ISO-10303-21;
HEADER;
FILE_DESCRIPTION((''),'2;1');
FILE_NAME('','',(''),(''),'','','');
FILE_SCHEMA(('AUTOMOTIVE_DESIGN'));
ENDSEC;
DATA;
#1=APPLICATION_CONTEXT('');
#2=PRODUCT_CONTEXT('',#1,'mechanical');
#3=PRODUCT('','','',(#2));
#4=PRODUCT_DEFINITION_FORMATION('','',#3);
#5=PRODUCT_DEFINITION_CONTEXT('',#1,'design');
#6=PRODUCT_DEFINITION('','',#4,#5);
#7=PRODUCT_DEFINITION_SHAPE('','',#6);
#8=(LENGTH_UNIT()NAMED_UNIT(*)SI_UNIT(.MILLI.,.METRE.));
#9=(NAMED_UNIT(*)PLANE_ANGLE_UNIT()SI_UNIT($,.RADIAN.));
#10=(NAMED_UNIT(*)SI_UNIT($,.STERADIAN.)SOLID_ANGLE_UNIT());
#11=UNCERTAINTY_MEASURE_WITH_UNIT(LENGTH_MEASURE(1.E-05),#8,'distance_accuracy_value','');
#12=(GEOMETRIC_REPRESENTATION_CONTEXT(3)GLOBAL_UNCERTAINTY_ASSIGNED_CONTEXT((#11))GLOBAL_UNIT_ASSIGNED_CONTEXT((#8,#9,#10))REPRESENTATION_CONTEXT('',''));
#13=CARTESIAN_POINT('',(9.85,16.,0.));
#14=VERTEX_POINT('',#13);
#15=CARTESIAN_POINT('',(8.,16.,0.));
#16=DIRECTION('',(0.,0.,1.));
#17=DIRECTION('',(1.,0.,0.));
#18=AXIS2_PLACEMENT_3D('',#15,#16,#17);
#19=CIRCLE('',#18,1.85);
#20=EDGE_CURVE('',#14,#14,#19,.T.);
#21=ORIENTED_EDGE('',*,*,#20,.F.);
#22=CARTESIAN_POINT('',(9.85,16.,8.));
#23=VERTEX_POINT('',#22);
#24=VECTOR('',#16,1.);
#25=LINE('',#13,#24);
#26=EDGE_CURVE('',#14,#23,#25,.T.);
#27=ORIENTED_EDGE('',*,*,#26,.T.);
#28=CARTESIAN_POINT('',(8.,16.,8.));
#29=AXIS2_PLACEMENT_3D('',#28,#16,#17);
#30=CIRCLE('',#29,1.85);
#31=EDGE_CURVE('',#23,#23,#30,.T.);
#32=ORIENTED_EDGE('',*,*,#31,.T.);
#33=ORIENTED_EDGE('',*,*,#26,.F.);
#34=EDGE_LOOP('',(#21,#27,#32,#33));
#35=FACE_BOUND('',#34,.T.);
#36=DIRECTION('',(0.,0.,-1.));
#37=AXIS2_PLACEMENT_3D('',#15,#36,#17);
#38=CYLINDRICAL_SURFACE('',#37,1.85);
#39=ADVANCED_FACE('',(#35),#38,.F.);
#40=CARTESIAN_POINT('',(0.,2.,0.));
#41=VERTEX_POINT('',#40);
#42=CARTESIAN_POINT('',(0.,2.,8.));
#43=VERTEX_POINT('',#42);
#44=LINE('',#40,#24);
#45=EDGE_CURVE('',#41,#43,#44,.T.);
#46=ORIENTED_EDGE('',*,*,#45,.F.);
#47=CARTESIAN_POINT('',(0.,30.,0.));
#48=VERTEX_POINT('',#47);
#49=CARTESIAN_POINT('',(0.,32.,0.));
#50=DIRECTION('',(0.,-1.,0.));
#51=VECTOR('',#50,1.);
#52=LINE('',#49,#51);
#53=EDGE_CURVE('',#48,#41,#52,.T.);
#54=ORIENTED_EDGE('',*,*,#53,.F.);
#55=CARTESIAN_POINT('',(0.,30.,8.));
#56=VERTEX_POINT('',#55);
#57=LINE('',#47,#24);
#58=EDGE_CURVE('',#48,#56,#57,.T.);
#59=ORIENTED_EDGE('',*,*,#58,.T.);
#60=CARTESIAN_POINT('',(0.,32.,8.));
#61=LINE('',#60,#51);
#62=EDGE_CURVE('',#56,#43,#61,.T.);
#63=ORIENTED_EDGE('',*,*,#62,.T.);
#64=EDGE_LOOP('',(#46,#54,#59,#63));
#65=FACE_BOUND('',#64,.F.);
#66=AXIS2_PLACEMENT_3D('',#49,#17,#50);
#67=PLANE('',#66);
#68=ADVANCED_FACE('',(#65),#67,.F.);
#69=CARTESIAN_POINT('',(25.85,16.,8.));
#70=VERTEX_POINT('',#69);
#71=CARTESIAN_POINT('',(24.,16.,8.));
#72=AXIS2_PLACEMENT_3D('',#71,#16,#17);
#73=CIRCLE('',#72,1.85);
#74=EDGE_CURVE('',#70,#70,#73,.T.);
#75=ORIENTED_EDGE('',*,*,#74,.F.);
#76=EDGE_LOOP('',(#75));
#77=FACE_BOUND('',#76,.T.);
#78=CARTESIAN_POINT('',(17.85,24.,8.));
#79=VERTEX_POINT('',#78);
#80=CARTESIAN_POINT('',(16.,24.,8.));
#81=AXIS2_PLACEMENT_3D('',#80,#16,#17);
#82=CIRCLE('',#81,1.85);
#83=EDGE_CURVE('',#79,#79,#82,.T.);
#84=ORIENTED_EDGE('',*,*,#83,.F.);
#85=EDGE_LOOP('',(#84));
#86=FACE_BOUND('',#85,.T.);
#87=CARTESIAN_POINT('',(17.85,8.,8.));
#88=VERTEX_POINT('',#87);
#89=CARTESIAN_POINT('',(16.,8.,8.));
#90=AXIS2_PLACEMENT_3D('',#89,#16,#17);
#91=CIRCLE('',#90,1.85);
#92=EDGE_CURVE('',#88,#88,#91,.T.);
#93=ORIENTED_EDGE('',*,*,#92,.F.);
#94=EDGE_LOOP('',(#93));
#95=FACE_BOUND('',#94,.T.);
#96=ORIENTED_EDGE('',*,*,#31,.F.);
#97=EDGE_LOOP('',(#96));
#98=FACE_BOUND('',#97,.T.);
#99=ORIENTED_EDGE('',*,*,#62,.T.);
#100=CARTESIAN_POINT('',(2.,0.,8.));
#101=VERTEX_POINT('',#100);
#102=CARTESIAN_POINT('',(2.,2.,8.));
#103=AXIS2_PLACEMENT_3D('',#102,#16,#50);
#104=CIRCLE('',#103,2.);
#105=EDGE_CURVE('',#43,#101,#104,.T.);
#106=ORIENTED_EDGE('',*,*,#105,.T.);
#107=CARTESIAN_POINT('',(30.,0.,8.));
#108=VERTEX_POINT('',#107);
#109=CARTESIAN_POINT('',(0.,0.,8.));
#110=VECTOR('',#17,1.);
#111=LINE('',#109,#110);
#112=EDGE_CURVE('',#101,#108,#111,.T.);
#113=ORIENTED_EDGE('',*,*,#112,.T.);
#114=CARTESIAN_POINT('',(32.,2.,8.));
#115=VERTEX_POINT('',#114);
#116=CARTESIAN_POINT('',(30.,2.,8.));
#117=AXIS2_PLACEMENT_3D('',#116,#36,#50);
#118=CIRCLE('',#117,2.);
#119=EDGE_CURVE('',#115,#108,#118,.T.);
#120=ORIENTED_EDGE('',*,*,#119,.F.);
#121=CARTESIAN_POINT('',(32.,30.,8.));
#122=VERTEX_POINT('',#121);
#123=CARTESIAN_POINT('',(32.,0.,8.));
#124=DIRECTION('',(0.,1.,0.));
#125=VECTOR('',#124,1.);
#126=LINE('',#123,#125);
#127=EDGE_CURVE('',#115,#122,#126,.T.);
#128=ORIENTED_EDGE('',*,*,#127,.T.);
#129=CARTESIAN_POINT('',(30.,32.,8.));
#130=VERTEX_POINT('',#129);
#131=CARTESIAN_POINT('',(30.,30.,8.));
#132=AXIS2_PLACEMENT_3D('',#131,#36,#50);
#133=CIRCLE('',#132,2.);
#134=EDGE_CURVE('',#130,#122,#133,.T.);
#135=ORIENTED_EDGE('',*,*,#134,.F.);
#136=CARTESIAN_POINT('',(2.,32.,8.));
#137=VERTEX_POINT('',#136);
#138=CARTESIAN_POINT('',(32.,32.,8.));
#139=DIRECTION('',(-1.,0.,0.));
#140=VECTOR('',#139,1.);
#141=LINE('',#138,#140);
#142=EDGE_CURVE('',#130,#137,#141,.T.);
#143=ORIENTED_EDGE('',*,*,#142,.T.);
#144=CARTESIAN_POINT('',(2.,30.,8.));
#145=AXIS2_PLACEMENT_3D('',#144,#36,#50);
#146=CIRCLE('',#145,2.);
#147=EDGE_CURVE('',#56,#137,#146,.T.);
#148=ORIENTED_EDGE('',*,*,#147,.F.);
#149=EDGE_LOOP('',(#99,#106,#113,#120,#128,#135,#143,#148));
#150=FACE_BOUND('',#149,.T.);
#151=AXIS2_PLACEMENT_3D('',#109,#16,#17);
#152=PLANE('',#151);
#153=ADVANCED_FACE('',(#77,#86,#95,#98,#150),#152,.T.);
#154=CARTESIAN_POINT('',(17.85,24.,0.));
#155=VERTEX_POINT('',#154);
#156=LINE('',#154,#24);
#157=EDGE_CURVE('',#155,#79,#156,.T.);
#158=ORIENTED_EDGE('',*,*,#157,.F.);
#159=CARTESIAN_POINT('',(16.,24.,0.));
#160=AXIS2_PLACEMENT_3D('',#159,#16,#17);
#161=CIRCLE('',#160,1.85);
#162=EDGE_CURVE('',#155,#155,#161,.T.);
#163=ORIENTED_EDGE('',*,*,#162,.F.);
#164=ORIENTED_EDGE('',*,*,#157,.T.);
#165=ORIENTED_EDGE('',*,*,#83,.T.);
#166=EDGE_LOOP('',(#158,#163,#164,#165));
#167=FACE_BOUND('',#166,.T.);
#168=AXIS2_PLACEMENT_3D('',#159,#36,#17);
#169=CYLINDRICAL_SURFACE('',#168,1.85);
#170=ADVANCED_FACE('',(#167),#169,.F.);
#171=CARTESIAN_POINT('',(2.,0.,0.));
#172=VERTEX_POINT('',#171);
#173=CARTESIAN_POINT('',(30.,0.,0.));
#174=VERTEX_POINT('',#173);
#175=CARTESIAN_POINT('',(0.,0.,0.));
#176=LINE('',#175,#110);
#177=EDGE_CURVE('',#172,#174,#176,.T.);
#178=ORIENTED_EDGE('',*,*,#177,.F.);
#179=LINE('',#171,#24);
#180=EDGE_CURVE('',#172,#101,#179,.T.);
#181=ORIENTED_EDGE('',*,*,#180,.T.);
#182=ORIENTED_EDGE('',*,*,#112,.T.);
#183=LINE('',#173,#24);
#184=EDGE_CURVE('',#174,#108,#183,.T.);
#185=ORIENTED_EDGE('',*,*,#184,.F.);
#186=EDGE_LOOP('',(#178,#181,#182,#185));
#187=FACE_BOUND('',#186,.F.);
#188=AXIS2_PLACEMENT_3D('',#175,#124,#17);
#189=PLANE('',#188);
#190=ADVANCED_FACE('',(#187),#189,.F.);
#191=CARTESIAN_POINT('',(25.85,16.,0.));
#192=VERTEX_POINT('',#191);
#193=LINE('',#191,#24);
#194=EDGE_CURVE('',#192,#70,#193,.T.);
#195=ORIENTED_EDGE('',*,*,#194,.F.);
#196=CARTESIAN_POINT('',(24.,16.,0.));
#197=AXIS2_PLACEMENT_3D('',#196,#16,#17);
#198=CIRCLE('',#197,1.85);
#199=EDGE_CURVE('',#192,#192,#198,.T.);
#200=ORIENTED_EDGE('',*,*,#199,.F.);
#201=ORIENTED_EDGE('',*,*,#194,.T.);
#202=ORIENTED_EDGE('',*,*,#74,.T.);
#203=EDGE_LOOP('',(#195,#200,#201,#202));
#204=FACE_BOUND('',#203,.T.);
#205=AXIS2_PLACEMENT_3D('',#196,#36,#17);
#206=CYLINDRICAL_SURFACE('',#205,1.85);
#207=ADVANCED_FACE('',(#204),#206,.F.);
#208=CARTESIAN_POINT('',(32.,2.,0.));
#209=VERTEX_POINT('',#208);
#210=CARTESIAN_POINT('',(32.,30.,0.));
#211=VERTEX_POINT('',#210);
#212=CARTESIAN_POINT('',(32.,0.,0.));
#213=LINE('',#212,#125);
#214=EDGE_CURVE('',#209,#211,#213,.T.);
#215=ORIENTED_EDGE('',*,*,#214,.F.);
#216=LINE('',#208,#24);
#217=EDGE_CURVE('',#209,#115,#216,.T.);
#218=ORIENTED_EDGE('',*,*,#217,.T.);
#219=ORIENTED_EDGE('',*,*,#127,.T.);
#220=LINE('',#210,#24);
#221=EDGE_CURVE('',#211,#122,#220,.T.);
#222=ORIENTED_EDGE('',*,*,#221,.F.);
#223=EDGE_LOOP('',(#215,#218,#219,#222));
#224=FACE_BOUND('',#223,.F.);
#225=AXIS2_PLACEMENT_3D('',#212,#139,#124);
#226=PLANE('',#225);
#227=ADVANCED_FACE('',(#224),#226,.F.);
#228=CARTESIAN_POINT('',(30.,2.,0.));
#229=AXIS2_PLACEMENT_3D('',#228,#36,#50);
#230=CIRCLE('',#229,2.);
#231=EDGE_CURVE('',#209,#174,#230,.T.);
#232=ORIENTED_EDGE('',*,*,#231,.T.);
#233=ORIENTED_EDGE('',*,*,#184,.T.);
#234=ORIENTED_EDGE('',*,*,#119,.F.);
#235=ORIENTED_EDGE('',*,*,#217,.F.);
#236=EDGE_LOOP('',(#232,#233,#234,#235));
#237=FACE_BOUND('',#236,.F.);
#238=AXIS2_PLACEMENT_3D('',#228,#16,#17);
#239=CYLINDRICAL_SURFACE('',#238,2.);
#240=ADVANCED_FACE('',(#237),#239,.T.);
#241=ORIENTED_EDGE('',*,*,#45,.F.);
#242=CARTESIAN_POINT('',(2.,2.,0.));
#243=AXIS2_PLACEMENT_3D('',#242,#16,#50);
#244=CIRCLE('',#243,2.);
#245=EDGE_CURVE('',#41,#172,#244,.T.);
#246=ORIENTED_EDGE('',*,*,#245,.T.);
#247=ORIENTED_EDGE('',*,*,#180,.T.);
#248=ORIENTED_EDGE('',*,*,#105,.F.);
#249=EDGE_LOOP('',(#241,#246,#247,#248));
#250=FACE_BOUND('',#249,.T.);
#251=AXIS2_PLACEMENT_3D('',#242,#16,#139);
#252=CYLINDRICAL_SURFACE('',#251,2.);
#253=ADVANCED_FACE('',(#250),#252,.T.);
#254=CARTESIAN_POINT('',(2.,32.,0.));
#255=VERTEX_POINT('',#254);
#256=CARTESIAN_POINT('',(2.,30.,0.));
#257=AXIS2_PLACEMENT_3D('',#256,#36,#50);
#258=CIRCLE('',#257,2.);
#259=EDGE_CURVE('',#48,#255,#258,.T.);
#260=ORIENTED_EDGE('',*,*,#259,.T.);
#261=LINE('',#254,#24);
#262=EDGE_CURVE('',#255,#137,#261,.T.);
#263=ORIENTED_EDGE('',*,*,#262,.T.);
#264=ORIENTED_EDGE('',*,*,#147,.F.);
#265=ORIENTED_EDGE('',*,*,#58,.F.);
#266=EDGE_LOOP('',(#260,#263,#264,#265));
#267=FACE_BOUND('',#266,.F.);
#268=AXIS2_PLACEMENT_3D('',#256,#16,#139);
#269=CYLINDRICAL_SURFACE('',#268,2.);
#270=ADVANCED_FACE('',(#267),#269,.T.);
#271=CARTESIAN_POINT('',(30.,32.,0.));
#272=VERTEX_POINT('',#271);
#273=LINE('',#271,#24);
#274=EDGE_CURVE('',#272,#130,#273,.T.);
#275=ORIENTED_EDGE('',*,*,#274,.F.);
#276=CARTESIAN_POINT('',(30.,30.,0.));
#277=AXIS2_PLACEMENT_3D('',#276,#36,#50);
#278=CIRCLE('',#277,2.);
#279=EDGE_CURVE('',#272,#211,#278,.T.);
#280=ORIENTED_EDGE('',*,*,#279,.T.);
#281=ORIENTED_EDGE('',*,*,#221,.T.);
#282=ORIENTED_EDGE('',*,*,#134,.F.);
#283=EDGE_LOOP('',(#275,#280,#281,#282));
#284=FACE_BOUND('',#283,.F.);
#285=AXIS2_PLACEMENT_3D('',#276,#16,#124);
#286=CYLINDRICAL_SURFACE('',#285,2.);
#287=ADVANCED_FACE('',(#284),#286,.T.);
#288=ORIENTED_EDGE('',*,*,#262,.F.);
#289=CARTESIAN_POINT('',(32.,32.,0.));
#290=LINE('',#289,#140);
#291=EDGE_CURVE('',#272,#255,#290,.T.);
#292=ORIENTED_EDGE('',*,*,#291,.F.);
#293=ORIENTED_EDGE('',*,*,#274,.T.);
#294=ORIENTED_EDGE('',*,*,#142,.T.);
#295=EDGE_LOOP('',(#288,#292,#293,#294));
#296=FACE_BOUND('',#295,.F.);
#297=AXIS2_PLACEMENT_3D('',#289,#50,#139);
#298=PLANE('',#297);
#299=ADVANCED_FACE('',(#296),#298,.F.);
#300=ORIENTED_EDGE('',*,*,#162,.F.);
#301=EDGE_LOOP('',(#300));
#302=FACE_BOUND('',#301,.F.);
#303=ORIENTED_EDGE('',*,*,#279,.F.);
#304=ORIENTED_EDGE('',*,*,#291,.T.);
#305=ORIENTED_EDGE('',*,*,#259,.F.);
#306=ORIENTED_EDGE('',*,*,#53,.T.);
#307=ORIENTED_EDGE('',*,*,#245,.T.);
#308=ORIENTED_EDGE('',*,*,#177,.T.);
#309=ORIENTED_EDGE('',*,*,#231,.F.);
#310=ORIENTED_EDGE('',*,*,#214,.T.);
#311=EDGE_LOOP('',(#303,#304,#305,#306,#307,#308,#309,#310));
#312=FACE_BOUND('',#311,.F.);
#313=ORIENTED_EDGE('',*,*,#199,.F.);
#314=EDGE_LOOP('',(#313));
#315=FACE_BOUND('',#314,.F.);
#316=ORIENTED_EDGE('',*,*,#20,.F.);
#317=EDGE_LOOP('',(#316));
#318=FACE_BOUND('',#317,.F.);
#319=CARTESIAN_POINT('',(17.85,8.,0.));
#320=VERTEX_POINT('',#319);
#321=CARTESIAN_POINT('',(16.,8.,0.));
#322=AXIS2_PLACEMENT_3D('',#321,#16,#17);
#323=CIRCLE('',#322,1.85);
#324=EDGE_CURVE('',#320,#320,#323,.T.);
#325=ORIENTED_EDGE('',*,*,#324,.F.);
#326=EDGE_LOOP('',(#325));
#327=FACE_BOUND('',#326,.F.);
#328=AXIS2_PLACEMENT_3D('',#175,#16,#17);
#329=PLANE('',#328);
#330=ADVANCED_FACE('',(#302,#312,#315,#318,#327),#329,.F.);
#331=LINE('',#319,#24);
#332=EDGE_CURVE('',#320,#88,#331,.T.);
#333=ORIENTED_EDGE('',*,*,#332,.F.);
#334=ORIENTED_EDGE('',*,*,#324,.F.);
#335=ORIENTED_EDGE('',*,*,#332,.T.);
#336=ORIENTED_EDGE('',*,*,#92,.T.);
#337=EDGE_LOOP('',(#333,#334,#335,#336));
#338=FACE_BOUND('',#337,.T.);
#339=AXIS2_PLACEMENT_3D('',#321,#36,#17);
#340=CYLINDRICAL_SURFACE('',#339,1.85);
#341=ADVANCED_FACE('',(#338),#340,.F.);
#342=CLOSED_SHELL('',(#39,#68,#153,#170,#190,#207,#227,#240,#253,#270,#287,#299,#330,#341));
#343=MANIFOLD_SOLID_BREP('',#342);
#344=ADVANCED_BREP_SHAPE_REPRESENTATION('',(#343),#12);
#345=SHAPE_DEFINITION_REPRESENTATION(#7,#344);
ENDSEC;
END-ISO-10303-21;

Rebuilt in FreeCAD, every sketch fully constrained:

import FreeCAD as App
import Part
import Sketcher
from FreeCAD import Vector
Q = App.Units.Quantity


def edges_at(feature, points):
    """Names of the edges that pass closest to the given points."""
    edges = feature.Shape.Edges
    near = lambda p: min(range(len(edges)), key=lambda i: edges[i].distToShape(Part.Vertex(*p))[0])
    return sorted({f"Edge{near(p) + 1}" for p in points})

doc = App.newDocument("Part")
body = doc.addObject("PartDesign::Body", "Body")

# Sketch on XY plane
sketch1 = body.newObject("Sketcher::SketchObject", "Sketch")
sketch1.AttachmentSupport = (doc.getObject("XY_Plane"), [""])
sketch1.MapMode = "FlatFace"
sketch1.addGeometry(Part.LineSegment(Vector(0, 32, 0), Vector(0, 0, 0)), False)
sketch1.addGeometry(Part.LineSegment(Vector(0, 0, 0), Vector(32, 0, 0)), False)
sketch1.addGeometry(Part.LineSegment(Vector(32, 0, 0), Vector(32, 32, 0)), False)
sketch1.addGeometry(Part.LineSegment(Vector(32, 32, 0), Vector(0, 32, 0)), False)
sketch1.addGeometry(Part.Circle(Vector(16, 8, 0), Vector(0, 0, 1), 1.9), False)
sketch1.addGeometry(Part.Circle(Vector(8, 16, 0), Vector(0, 0, 1), 1.9), False)
sketch1.addGeometry(Part.Circle(Vector(24, 16, 0), Vector(0, 0, 1), 1.9), False)
sketch1.addGeometry(Part.Circle(Vector(16, 24, 0), Vector(0, 0, 1), 1.9), False)
sketch1.addConstraint(Sketcher.Constraint("Coincident", 0, 2, 1, 1))
sketch1.addConstraint(Sketcher.Constraint("Coincident", 1, 2, 2, 1))
sketch1.addConstraint(Sketcher.Constraint("Coincident", 2, 2, 3, 1))
sketch1.addConstraint(Sketcher.Constraint("Coincident", 3, 2, 0, 1))
sketch1.addConstraint(Sketcher.Constraint("Vertical", 0))
sketch1.addConstraint(Sketcher.Constraint("Horizontal", 1))
sketch1.addConstraint(Sketcher.Constraint("Vertical", 2))
sketch1.addConstraint(Sketcher.Constraint("Horizontal", 3))
sketch1.addConstraint(Sketcher.Constraint("Coincident", 0, 2, -1, 1))
sketch1.addConstraint(Sketcher.Constraint("Equal", 4, 5))
sketch1.addConstraint(Sketcher.Constraint("Equal", 5, 6))
sketch1.addConstraint(Sketcher.Constraint("Equal", 6, 7))
sketch1.addConstraint(Sketcher.Constraint("Horizontal", 5, 3, 6, 3))
sketch1.addConstraint(Sketcher.Constraint("Vertical", 4, 3, 7, 3))
sketch1.addConstraint(Sketcher.Constraint("Equal", 3, 0))
sketch1.addConstraint(Sketcher.Constraint("DistanceX", 1, 1, 1, 2, Q("32 mm")))
sketch1.addConstraint(Sketcher.Constraint("Diameter", 4, Q("3.7 mm")))
sketch1.addConstraint(Sketcher.Constraint("DistanceX", -1, 1, 4, 3, Q("16 mm")))
sketch1.addConstraint(Sketcher.Constraint("DistanceY", -1, 1, 4, 3, Q("8 mm")))
sketch1.addConstraint(Sketcher.Constraint("DistanceX", -1, 1, 5, 3, Q("8 mm")))
sketch1.addConstraint(Sketcher.Constraint("DistanceY", -1, 1, 5, 3, Q("16 mm")))
sketch1.addConstraint(Sketcher.Constraint("DistanceX", -1, 1, 6, 3, Q("24 mm")))
sketch1.addConstraint(Sketcher.Constraint("DistanceY", -1, 1, 7, 3, Q("24 mm")))
pad1 = body.newObject("PartDesign::Pad", "Pad")
pad1.Profile = sketch1
pad1.Length = 8
doc.recompute()

fillet = body.newObject("PartDesign::Fillet", "Fillet")
fillet.Base = (pad1, edges_at(pad1, [
    (32, 0, 4),
    (32, 32, 4),
    (0, 0, 4),
    (0, 32, 4),
]))
fillet.Radius = 2

doc.recompute()
